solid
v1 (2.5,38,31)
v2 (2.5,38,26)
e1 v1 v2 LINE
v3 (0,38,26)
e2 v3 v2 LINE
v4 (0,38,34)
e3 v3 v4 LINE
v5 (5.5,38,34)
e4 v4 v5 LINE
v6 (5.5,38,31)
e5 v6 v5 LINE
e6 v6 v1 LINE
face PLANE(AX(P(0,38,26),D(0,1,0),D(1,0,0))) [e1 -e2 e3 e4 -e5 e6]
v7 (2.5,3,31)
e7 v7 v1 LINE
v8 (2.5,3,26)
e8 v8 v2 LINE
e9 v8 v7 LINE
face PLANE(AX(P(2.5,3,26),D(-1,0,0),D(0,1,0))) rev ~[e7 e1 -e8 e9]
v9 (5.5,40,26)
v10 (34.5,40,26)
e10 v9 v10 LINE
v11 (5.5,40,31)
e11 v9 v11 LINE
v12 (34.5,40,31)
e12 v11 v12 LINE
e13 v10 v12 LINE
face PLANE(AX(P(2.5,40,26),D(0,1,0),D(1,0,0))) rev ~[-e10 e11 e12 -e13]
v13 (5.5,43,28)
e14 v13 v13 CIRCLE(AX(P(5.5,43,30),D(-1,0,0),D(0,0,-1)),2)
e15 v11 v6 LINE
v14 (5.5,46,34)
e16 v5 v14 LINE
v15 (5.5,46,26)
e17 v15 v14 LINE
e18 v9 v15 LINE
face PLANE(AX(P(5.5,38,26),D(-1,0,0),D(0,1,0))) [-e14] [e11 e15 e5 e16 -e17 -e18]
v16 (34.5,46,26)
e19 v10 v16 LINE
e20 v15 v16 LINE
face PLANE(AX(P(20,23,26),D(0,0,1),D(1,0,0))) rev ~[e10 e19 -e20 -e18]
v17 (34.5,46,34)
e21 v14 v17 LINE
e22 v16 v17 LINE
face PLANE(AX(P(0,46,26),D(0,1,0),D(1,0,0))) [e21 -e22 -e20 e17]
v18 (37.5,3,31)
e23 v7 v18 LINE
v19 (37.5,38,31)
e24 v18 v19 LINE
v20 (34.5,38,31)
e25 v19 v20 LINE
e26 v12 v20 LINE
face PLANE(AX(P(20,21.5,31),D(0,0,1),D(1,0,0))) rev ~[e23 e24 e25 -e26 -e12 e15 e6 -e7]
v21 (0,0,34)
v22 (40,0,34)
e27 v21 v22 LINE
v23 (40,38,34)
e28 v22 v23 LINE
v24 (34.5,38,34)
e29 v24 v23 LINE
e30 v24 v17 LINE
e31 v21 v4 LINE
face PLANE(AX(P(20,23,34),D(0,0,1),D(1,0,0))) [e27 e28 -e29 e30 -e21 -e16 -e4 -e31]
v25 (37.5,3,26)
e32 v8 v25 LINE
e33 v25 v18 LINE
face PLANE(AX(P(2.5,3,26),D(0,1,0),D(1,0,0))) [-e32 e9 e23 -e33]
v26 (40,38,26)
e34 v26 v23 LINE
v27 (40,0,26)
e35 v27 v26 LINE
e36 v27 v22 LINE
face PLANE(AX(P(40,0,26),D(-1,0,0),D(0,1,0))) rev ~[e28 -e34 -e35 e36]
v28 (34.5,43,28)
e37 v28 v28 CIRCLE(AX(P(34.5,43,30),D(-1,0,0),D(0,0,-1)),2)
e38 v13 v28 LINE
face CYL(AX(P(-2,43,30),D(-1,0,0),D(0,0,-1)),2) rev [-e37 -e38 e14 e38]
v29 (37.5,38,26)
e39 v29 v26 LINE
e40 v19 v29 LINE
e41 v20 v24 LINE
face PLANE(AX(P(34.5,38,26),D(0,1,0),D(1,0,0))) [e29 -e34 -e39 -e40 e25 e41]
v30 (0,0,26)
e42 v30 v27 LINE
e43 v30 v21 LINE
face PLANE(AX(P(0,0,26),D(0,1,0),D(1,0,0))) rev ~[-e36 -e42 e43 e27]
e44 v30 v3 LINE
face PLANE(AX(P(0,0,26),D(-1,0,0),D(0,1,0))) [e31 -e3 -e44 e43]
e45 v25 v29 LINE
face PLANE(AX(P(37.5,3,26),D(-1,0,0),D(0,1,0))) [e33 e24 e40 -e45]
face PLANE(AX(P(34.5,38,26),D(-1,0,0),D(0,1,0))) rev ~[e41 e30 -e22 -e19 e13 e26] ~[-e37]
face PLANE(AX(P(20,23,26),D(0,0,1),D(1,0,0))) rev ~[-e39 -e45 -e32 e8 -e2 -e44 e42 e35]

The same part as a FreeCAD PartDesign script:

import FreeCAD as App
import Part
import Sketcher
from FreeCAD import Vector
Q = App.Units.Quantity

doc = App.newDocument("Part")
params = doc.addObject("Spreadsheet::Sheet", "Params")
for row, (alias, value) in enumerate([
    ("sketch1_diameter", "4 mm"),
    ("pad1_length", "45 mm"),
    ("sketch2_height", "8 mm"),
    ("sketch2_width", "5.5 mm"),
    ("pad2_length", "8 mm"),
    ("sketch3_height", "8 mm"),
    ("sketch3_width", "5.5 mm"),
    ("pad3_length", "8 mm"),
    ("sketch4_width", "35 mm"),
    ("sketch4_height", "37 mm"),
    ("pad4_length", "5 mm"),
    ("sketch5_width", "40 mm"),
    ("sketch5_height", "46 mm"),
    ("pad5_length", "8 mm"),
], start=1):
    params.set(f"A{row}", alias)
    params.set(f"B{row}", "=" + value)
    params.setAlias(f"B{row}", alias)

body = doc.addObject("PartDesign::Body", "Body")

sketch1 = body.newObject("Sketcher::SketchObject", "Sketch")
sketch1.AttachmentSupport = (doc.getObject("YZ_Plane"), [""])
sketch1.MapMode = "FlatFace"
sketch1.AttachmentOffset = App.Placement(Vector(0, 0, -2), App.Rotation())
sketch1.addGeometry(Part.Circle(Vector(43, 30, 0), Vector(0, 0, 1), 2), False)
sketch1.addConstraint(Sketcher.Constraint("Diameter", 0, Q("4 mm")))
sketch1.addConstraint(Sketcher.Constraint("DistanceX", -1, 1, 0, 3, Q("43 mm")))
sketch1.addConstraint(Sketcher.Constraint("DistanceY", -1, 1, 0, 3, Q("30 mm")))
sketch1.setExpression("Constraints[0]", "Params.sketch1_diameter")
pad1 = body.newObject("PartDesign::Pad", "Pad")
pad1.Profile = sketch1
pad1.setExpression("Length", "Params.pad1_length")
body2 = doc.addObject("PartDesign::Body", "Body001")

sketch2 = body2.newObject("Sketcher::SketchObject", "Sketch001")
sketch2.AttachmentSupport = (doc.getObject("XY_Plane001"), [""])
sketch2.MapMode = "FlatFace"
sketch2.AttachmentOffset = App.Placement(Vector(0, 0, 26), App.Rotation())
sketch2.addGeometry(Part.LineSegment(Vector(34, 46, 0), Vector(34, 38, 0)), False)
sketch2.addGeometry(Part.LineSegment(Vector(34, 38, 0), Vector(40, 38, 0)), False)
sketch2.addGeometry(Part.LineSegment(Vector(40, 38, 0), Vector(40, 46, 0)), False)
sketch2.addGeometry(Part.LineSegment(Vector(40, 46, 0), Vector(34, 46, 0)), False)
sketch2.addConstraint(Sketcher.Constraint("Coincident", 0, 2, 1, 1))
sketch2.addConstraint(Sketcher.Constraint("Coincident", 1, 2, 2, 1))
sketch2.addConstraint(Sketcher.Constraint("Coincident", 2, 2, 3, 1))
sketch2.addConstraint(Sketcher.Constraint("Coincident", 3, 2, 0, 1))
sketch2.addConstraint(Sketcher.Constraint("Vertical", 0))
sketch2.addConstraint(Sketcher.Constraint("Horizontal", 1))
sketch2.addConstraint(Sketcher.Constraint("Vertical", 2))
sketch2.addConstraint(Sketcher.Constraint("Horizontal", 3))
sketch2.addConstraint(Sketcher.Constraint("DistanceY", 0, 2, 0, 1, Q("8 mm")))
sketch2.addConstraint(Sketcher.Constraint("DistanceX", 1, 1, 1, 2, Q("5.5 mm")))
sketch2.addConstraint(Sketcher.Constraint("DistanceY", -1, 1, 0, 2, Q("38 mm")))
sketch2.addConstraint(Sketcher.Constraint("DistanceX", -1, 1, 1, 2, Q("40 mm")))
sketch2.setExpression("Constraints[8]", "Params.sketch2_height")
sketch2.setExpression("Constraints[9]", "Params.sketch2_width")
pad2 = body2.newObject("PartDesign::Pad", "Pad001")
pad2.Profile = sketch2
pad2.setExpression("Length", "Params.pad2_length")
body3 = doc.addObject("PartDesign::Body", "Body002")

sketch3 = body3.newObject("Sketcher::SketchObject", "Sketch002")
sketch3.AttachmentSupport = (doc.getObject("XY_Plane002"), [""])
sketch3.MapMode = "FlatFace"
sketch3.AttachmentOffset = App.Placement(Vector(0, 0, 26), App.Rotation())
sketch3.addGeometry(Part.LineSegment(Vector(0, 46, 0), Vector(0, 38, 0)), False)
sketch3.addGeometry(Part.LineSegment(Vector(0, 38, 0), Vector(6, 38, 0)), False)
sketch3.addGeometry(Part.LineSegment(Vector(6, 38, 0), Vector(6, 46, 0)), False)
sketch3.addGeometry(Part.LineSegment(Vector(6, 46, 0), Vector(0, 46, 0)), False)
sketch3.addConstraint(Sketcher.Constraint("Coincident", 0, 2, 1, 1))
sketch3.addConstraint(Sketcher.Constraint("Coincident", 1, 2, 2, 1))
sketch3.addConstraint(Sketcher.Constraint("Coincident", 2, 2, 3, 1))
sketch3.addConstraint(Sketcher.Constraint("Coincident", 3, 2, 0, 1))
sketch3.addConstraint(Sketcher.Constraint("Vertical", 0))
sketch3.addConstraint(Sketcher.Constraint("Horizontal", 1))
sketch3.addConstraint(Sketcher.Constraint("Vertical", 2))
sketch3.addConstraint(Sketcher.Constraint("Horizontal", 3))
sketch3.addConstraint(Sketcher.Constraint("PointOnObject", 0, 2, -2))
sketch3.addConstraint(Sketcher.Constraint("DistanceY", 0, 2, 0, 1, Q("8 mm")))
sketch3.addConstraint(Sketcher.Constraint("DistanceX", 1, 1, 1, 2, Q("5.5 mm")))
sketch3.addConstraint(Sketcher.Constraint("DistanceY", -1, 1, 0, 2, Q("38 mm")))
sketch3.setExpression("Constraints[9]", "Params.sketch3_height")
sketch3.setExpression("Constraints[10]", "Params.sketch3_width")
pad3 = body3.newObject("PartDesign::Pad", "Pad002")
pad3.Profile = sketch3
pad3.setExpression("Length", "Params.pad3_length")
body4 = doc.addObject("PartDesign::Body", "Body003")

sketch4 = body4.newObject("Sketcher::SketchObject", "Sketch003")
sketch4.AttachmentSupport = (doc.getObject("XY_Plane003"), [""])
sketch4.MapMode = "FlatFace"
sketch4.AttachmentOffset = App.Placement(Vector(0, 0, 26), App.Rotation())
sketch4.addGeometry(Part.LineSegment(Vector(2, 40, 0), Vector(2, 3, 0)), False)
sketch4.addGeometry(Part.LineSegment(Vector(2, 3, 0), Vector(38, 3, 0)), False)
sketch4.addGeometry(Part.LineSegment(Vector(38, 3, 0), Vector(38, 40, 0)), False)
sketch4.addGeometry(Part.LineSegment(Vector(38, 40, 0), Vector(2, 40, 0)), False)
sketch4.addConstraint(Sketcher.Constraint("Coincident", 0, 2, 1, 1))
sketch4.addConstraint(Sketcher.Constraint("Coincident", 1, 2, 2, 1))
sketch4.addConstraint(Sketcher.Constraint("Coincident", 2, 2, 3, 1))
sketch4.addConstraint(Sketcher.Constraint("Coincident", 3, 2, 0, 1))
sketch4.addConstraint(Sketcher.Constraint("Vertical", 0))
sketch4.addConstraint(Sketcher.Constraint("Horizontal", 1))
sketch4.addConstraint(Sketcher.Constraint("Vertical", 2))
sketch4.addConstraint(Sketcher.Constraint("Horizontal", 3))
sketch4.addConstraint(Sketcher.Constraint("DistanceX", 1, 1, 1, 2, Q("35 mm")))
sketch4.addConstraint(Sketcher.Constraint("DistanceY", 0, 2, 0, 1, Q("37 mm")))
sketch4.addConstraint(Sketcher.Constraint("DistanceY", -1, 1, 0, 2, Q("3 mm")))
sketch4.addConstraint(Sketcher.Constraint("DistanceX", -1, 1, 0, 2, Q("2.5 mm")))
sketch4.setExpression("Constraints[8]", "Params.sketch4_width")
sketch4.setExpression("Constraints[9]", "Params.sketch4_height")
pad4 = body4.newObject("PartDesign::Pad", "Pad003")
pad4.Profile = sketch4
pad4.setExpression("Length", "Params.pad4_length")
body5 = doc.addObject("PartDesign::Body", "Body004")

sketch5 = body5.newObject("Sketcher::SketchObject", "Sketch004")
sketch5.AttachmentSupport = (doc.getObject("XY_Plane004"), [""])
sketch5.MapMode = "FlatFace"
sketch5.AttachmentOffset = App.Placement(Vector(0, 0, 26), App.Rotation())
sketch5.addGeometry(Part.LineSegment(Vector(0, 46, 0), Vector(0, 0, 0)), False)
sketch5.addGeometry(Part.LineSegment(Vector(0, 0, 0), Vector(40, 0, 0)), False)
sketch5.addGeometry(Part.LineSegment(Vector(40, 0, 0), Vector(40, 46, 0)), False)
sketch5.addGeometry(Part.LineSegment(Vector(40, 46, 0), Vector(0, 46, 0)), False)
sketch5.addConstraint(Sketcher.Constraint("Coincident", 0, 2, 1, 1))
sketch5.addConstraint(Sketcher.Constraint("Coincident", 1, 2, 2, 1))
sketch5.addConstraint(Sketcher.Constraint("Coincident", 2, 2, 3, 1))
sketch5.addConstraint(Sketcher.Constraint("Coincident", 3, 2, 0, 1))
sketch5.addConstraint(Sketcher.Constraint("Vertical", 0))
sketch5.addConstraint(Sketcher.Constraint("Horizontal", 1))
sketch5.addConstraint(Sketcher.Constraint("Vertical", 2))
sketch5.addConstraint(Sketcher.Constraint("Horizontal", 3))
sketch5.addConstraint(Sketcher.Constraint("Coincident", 0, 2, -1, 1))
sketch5.addConstraint(Sketcher.Constraint("DistanceX", 1, 1, 1, 2, Q("40 mm")))
sketch5.addConstraint(Sketcher.Constraint("DistanceY", 0, 2, 0, 1, Q("46 mm")))
sketch5.setExpression("Constraints[9]", "Params.sketch5_width")
sketch5.setExpression("Constraints[10]", "Params.sketch5_height")
pad5 = body5.newObject("PartDesign::Pad", "Pad004")
pad5.Profile = sketch5
pad5.setExpression("Length", "Params.pad5_length")
doc.recompute()

boolean = body5.newObject("PartDesign::Boolean", "Boolean")
boolean.Type = "Cut"
boolean.addObjects([body4])
doc.recompute()

boolean2 = body5.newObject("PartDesign::Boolean", "Boolean001")
boolean2.Type = "Cut"
boolean2.addObjects([body3])
doc.recompute()

boolean3 = body5.newObject("PartDesign::Boolean", "Boolean002")
boolean3.Type = "Cut"
boolean3.addObjects([body2])
doc.recompute()

boolean4 = body5.newObject("PartDesign::Boolean", "Boolean003")
boolean4.Type = "Cut"
boolean4.addObjects([body])

doc.recompute()
